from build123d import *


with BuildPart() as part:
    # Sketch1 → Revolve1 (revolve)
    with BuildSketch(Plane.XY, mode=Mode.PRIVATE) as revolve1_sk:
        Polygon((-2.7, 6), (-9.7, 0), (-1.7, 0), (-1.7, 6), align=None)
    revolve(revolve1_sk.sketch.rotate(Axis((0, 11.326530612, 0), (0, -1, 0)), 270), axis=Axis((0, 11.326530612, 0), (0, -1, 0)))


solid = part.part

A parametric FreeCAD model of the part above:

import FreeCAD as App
import Part
import Sketcher

V = App.Vector
Q = App.Units.Quantity

doc = App.newDocument("Part")
body = doc.addObject("PartDesign::Body", "Body")

# Sketch on XY plane
sketch1 = body.newObject("Sketcher::SketchObject", "Sketch")
sketch1.AttachmentSupport = (doc.getObject("XY_Plane"), [""])
sketch1.MapMode = "FlatFace"
sketch1.addGeometry(Part.LineSegment(V(-2.7, 6, 0), V(-9.7, 0, 0)), False)
sketch1.addGeometry(Part.LineSegment(V(-9.7, 0, 0), V(-1.7, 0, 0)), False)
sketch1.addGeometry(Part.LineSegment(V(-1.7, 0, 0), V(-1.7, 6, 0)), False)
sketch1.addGeometry(Part.LineSegment(V(-1.7, 6, 0), V(-2.7, 6, 0)), False)
sketch1.addConstraint(Sketcher.Constraint("Coincident", 0, 2, 1, 1))
sketch1.addConstraint(Sketcher.Constraint("Coincident", 1, 2, 2, 1))
sketch1.addConstraint(Sketcher.Constraint("Coincident", 2, 2, 3, 1))
sketch1.addConstraint(Sketcher.Constraint("Coincident", 3, 2, 0, 1))
sketch1.addConstraint(Sketcher.Constraint("Horizontal", 1))
sketch1.addConstraint(Sketcher.Constraint("Vertical", 2))
sketch1.addConstraint(Sketcher.Constraint("Horizontal", 3))
sketch1.addConstraint(Sketcher.Constraint("PointOnObject", 0, 2, -1))
sketch1.addConstraint(Sketcher.Constraint("DistanceX", 1, 1, 1, 2, Q("8 mm")))
sketch1.addConstraint(Sketcher.Constraint("DistanceX", 3, 2, 3, 1, Q("1 mm")))
sketch1.addConstraint(Sketcher.Constraint("DistanceY", 2, 1, 2, 2, Q("6 mm")))
sketch1.addConstraint(Sketcher.Constraint("DistanceX", 0, 2, -1, 1, Q("9.7 mm")))
revolution = body.newObject("PartDesign::Revolution", "Revolution")
revolution.Profile = sketch1
revolution.ReferenceAxis = (sketch1, ["V_Axis"])
revolution.Angle = 360

doc.recompute()
